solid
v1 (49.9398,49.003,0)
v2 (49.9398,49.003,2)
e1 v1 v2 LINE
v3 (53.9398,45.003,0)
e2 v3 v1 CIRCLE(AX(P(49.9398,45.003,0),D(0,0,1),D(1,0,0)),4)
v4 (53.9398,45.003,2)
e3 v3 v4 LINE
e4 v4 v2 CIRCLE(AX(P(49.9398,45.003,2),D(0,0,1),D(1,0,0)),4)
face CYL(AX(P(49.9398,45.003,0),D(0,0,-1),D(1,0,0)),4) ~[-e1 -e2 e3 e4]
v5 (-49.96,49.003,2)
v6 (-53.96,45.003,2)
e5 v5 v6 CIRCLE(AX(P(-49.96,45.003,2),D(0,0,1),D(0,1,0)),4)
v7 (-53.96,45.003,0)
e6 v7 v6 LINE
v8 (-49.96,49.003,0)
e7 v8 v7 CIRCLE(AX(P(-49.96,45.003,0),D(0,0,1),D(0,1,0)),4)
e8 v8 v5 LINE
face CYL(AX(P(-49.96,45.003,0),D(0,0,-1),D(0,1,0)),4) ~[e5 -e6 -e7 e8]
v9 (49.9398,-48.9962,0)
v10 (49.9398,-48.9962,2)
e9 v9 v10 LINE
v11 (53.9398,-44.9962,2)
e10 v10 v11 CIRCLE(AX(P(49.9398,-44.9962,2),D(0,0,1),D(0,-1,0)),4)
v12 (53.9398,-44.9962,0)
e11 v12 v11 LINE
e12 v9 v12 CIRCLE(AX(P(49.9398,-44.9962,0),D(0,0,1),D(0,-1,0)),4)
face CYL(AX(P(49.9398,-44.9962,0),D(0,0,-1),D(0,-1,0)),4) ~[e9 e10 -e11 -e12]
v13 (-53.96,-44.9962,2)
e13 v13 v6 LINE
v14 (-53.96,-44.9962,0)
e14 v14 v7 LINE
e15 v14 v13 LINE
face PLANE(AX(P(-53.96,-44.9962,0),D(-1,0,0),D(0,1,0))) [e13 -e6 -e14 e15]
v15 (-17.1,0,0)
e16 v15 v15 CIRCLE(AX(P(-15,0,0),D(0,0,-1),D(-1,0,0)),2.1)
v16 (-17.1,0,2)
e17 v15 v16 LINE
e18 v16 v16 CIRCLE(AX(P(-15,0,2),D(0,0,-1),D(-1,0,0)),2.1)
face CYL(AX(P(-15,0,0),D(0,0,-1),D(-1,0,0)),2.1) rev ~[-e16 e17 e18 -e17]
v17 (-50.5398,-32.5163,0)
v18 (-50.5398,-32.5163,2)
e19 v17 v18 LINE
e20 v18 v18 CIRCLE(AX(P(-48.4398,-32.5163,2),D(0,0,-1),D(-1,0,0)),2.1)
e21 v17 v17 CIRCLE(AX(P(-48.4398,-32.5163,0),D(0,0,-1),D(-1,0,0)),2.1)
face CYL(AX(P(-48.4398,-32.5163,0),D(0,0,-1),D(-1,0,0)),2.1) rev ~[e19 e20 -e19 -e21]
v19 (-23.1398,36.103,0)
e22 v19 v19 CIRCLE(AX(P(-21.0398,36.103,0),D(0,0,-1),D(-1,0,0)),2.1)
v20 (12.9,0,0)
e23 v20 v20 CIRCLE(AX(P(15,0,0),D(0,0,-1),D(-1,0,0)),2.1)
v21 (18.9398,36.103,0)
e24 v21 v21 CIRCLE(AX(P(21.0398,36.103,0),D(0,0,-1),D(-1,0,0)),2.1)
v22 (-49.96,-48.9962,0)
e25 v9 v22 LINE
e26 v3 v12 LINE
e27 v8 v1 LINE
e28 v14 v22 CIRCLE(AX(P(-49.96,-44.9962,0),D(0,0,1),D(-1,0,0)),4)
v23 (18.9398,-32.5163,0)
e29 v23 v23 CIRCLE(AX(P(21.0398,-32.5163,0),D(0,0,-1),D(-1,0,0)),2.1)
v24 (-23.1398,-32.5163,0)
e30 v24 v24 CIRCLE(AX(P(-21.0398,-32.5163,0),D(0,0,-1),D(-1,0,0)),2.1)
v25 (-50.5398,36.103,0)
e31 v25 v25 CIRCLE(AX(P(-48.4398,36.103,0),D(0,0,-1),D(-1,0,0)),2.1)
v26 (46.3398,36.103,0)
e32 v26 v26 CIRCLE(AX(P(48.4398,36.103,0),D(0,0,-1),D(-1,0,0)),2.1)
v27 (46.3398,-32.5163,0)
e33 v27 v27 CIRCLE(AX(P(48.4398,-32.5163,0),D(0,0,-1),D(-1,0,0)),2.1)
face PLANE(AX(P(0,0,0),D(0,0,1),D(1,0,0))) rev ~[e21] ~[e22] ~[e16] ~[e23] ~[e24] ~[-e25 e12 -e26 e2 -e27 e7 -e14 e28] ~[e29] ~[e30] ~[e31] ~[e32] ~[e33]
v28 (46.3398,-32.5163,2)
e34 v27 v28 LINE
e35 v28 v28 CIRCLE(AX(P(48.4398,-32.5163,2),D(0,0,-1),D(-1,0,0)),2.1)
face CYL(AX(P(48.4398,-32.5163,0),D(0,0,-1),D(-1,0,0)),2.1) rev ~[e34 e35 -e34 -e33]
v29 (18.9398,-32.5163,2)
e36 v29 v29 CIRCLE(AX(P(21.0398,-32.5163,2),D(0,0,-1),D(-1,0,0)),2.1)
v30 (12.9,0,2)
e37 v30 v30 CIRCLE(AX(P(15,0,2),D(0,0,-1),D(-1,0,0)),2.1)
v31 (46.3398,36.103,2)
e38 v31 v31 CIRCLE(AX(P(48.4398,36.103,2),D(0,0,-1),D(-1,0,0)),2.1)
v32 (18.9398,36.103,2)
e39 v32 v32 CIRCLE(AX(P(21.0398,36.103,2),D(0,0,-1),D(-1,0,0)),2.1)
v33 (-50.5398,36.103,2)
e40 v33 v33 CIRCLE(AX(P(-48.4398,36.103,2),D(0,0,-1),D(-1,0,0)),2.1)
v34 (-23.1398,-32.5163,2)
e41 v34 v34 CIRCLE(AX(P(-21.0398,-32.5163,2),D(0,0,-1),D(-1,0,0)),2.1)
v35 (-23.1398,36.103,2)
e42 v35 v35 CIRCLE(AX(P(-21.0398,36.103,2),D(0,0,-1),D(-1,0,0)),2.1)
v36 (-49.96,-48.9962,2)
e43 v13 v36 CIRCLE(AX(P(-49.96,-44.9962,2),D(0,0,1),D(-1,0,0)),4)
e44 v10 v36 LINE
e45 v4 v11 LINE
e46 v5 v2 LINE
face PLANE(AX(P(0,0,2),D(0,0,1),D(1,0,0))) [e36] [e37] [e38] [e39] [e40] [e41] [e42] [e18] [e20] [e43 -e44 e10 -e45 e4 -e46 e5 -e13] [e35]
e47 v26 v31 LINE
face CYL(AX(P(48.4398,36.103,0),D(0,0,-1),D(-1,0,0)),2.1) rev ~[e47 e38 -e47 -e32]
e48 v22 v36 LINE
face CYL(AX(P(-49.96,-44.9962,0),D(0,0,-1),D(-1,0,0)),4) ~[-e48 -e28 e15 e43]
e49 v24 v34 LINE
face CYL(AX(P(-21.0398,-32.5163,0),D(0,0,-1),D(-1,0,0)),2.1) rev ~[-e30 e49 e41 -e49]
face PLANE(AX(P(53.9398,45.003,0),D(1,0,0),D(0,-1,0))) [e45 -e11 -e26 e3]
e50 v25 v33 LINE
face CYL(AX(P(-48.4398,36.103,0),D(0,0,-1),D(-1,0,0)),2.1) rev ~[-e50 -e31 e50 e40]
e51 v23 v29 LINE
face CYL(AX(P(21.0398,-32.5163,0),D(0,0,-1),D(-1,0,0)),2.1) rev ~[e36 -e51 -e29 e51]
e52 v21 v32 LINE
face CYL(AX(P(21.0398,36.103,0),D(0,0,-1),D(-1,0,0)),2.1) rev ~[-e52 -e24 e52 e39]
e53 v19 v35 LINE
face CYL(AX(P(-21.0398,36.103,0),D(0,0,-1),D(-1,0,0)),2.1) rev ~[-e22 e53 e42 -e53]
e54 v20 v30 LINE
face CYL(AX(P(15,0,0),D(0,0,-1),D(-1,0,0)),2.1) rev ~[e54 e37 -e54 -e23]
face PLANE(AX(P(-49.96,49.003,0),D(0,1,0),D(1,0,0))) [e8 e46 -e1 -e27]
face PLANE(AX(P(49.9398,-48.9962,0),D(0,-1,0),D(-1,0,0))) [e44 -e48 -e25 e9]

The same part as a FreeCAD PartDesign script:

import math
import FreeCAD as App
import Part
import Sketcher

doc = App.newDocument("Part")
body = doc.addObject("PartDesign::Body", "Body")

sketch1 = body.newObject("Sketcher::SketchObject", "Sketch")
sketch1.AttachmentSupport = (doc.getObject("XY_Plane"), [""])
sketch1.MapMode = "FlatFace"
sketch1.addGeometry([
    Part.LineSegment(App.Vector(49.9, 49, 0), App.Vector(-50, 49, 0)),
    Part.ArcOfCircle(Part.Circle(App.Vector(-50, 45, 0), App.Vector(0, 0, 1), 4), math.radians(90), math.radians(180)),
    Part.LineSegment(App.Vector(-54, 45, 0), App.Vector(-54, -45, 0)),
    Part.ArcOfCircle(Part.Circle(App.Vector(-50, -45, 0), App.Vector(0, 0, 1), 4), math.radians(180), math.radians(270)),
    Part.LineSegment(App.Vector(-50, -49, 0), App.Vector(49.9, -49, 0)),
    Part.ArcOfCircle(Part.Circle(App.Vector(49.9, -45, 0), App.Vector(0, 0, 1), 4), math.radians(-90), math.radians(0)),
    Part.LineSegment(App.Vector(53.9, -45, 0), App.Vector(53.9, 45, 0)),
    Part.ArcOfCircle(Part.Circle(App.Vector(49.9, 45, 0), App.Vector(0, 0, 1), 4), math.radians(0), math.radians(90)),
], False)
sketch1.addConstraint([
    Sketcher.Constraint("Tangent", 0, 2, 1, 1),
    Sketcher.Constraint("Tangent", 1, 2, 2, 1),
    Sketcher.Constraint("Tangent", 2, 2, 3, 1),
    Sketcher.Constraint("Tangent", 3, 2, 4, 1),
    Sketcher.Constraint("Tangent", 4, 2, 5, 1),
    Sketcher.Constraint("Tangent", 5, 2, 6, 1),
    Sketcher.Constraint("Tangent", 6, 2, 7, 1),
    Sketcher.Constraint("Tangent", 7, 2, 0, 1),
    Sketcher.Constraint("Horizontal", 0),
    Sketcher.Constraint("Vertical", 2),
    Sketcher.Constraint("Horizontal", 4),
    Sketcher.Constraint("Vertical", 6),
    Sketcher.Constraint("Equal", 1, 3),
    Sketcher.Constraint("Equal", 3, 5),
    Sketcher.Constraint("Equal", 5, 7),
    Sketcher.Constraint("Radius", 1, 4.0),
    Sketcher.Constraint("DistanceX", 1, 3, -1, 1, 49.96),
    Sketcher.Constraint("DistanceX", 0, 2, 0, 1, 99.8998),
    Sketcher.Constraint("DistanceY", 2, 2, 2, 1, 89.9992),
    Sketcher.Constraint("DistanceY", -1, 1, 1, 3, 45.003),
])
pad1 = body.newObject("PartDesign::Pad", "Pad")
pad1.Profile = sketch1
pad1.Length = 2

sketch2 = body.newObject("Sketcher::SketchObject", "Sketch001")
sketch2.AttachmentSupport = (doc.getObject("XY_Plane"), [""])
sketch2.MapMode = "FlatFace"
sketch2.addGeometry([
    Part.Circle(App.Vector(15, 0, 0), App.Vector(0, 0, 1), 2.1),
    Part.Circle(App.Vector(48.4, 36.1, 0), App.Vector(0, 0, 1), 2.1),
    Part.Circle(App.Vector(21, 36.1, 0), App.Vector(0, 0, 1), 2.1),
    Part.Circle(App.Vector(-48.4, 36.1, 0), App.Vector(0, 0, 1), 2.1),
    Part.Circle(App.Vector(-21, 36.1, 0), App.Vector(0, 0, 1), 2.1),
    Part.Circle(App.Vector(48.4, -32.5, 0), App.Vector(0, 0, 1), 2.1),
    Part.Circle(App.Vector(21, -32.5, 0), App.Vector(0, 0, 1), 2.1),
    Part.Circle(App.Vector(-21, -32.5, 0), App.Vector(0, 0, 1), 2.1),
    Part.Circle(App.Vector(-48.4, -32.5, 0), App.Vector(0, 0, 1), 2.1),
    Part.Circle(App.Vector(-15, 0, 0), App.Vector(0, 0, 1), 2.1),
], False)
sketch2.addConstraint([
    Sketcher.Constraint("Equal", 0, 1),
    Sketcher.Constraint("Equal", 1, 2),
    Sketcher.Constraint("Equal", 2, 3),
    Sketcher.Constraint("Equal", 3, 4),
    Sketcher.Constraint("Equal", 4, 5),
    Sketcher.Constraint("Equal", 5, 6),
    Sketcher.Constraint("Equal", 6, 7),
    Sketcher.Constraint("Equal", 7, 8),
    Sketcher.Constraint("Equal", 8, 9),
    Sketcher.Constraint("Symmetric", 0, 3, 9, 3, -1, 1),
    Sketcher.Constraint("Symmetric", 1, 3, 3, 3, -2),
    Sketcher.Constraint("Symmetric", 2, 3, 4, 3, -2),
    Sketcher.Constraint("Symmetric", 6, 3, 7, 3, -2),
    Sketcher.Constraint("Symmetric", 5, 3, 8, 3, -2),
    Sketcher.Constraint("PointOnObject", 0, 3, -1),
    Sketcher.Constraint("Horizontal", 1, 3, 2, 3),
    Sketcher.Constraint("Horizontal", 5, 3, 6, 3),
    Sketcher.Constraint("Vertical", 1, 3, 5, 3),
    Sketcher.Constraint("Vertical", 2, 3, 6, 3),
    Sketcher.Constraint("Diameter", 0, 4.2),
    Sketcher.Constraint("DistanceX", -1, 1, 0, 3, 15.0),
    Sketcher.Constraint("DistanceX", 2, 3, 1, 3, 27.4),
    Sketcher.Constraint("DistanceY", -1, 1, 1, 3, 36.103),
    Sketcher.Constraint("DistanceX", -1, 1, 1, 3, 48.4398),
    Sketcher.Constraint("DistanceY", 5, 3, -1, 1, 32.5163),
])
pocket1 = body.newObject("PartDesign::Pocket", "Pocket")
pocket1.Profile = sketch2
pocket1.Length = 2
pocket1.Reversed = True

doc.recompute()
